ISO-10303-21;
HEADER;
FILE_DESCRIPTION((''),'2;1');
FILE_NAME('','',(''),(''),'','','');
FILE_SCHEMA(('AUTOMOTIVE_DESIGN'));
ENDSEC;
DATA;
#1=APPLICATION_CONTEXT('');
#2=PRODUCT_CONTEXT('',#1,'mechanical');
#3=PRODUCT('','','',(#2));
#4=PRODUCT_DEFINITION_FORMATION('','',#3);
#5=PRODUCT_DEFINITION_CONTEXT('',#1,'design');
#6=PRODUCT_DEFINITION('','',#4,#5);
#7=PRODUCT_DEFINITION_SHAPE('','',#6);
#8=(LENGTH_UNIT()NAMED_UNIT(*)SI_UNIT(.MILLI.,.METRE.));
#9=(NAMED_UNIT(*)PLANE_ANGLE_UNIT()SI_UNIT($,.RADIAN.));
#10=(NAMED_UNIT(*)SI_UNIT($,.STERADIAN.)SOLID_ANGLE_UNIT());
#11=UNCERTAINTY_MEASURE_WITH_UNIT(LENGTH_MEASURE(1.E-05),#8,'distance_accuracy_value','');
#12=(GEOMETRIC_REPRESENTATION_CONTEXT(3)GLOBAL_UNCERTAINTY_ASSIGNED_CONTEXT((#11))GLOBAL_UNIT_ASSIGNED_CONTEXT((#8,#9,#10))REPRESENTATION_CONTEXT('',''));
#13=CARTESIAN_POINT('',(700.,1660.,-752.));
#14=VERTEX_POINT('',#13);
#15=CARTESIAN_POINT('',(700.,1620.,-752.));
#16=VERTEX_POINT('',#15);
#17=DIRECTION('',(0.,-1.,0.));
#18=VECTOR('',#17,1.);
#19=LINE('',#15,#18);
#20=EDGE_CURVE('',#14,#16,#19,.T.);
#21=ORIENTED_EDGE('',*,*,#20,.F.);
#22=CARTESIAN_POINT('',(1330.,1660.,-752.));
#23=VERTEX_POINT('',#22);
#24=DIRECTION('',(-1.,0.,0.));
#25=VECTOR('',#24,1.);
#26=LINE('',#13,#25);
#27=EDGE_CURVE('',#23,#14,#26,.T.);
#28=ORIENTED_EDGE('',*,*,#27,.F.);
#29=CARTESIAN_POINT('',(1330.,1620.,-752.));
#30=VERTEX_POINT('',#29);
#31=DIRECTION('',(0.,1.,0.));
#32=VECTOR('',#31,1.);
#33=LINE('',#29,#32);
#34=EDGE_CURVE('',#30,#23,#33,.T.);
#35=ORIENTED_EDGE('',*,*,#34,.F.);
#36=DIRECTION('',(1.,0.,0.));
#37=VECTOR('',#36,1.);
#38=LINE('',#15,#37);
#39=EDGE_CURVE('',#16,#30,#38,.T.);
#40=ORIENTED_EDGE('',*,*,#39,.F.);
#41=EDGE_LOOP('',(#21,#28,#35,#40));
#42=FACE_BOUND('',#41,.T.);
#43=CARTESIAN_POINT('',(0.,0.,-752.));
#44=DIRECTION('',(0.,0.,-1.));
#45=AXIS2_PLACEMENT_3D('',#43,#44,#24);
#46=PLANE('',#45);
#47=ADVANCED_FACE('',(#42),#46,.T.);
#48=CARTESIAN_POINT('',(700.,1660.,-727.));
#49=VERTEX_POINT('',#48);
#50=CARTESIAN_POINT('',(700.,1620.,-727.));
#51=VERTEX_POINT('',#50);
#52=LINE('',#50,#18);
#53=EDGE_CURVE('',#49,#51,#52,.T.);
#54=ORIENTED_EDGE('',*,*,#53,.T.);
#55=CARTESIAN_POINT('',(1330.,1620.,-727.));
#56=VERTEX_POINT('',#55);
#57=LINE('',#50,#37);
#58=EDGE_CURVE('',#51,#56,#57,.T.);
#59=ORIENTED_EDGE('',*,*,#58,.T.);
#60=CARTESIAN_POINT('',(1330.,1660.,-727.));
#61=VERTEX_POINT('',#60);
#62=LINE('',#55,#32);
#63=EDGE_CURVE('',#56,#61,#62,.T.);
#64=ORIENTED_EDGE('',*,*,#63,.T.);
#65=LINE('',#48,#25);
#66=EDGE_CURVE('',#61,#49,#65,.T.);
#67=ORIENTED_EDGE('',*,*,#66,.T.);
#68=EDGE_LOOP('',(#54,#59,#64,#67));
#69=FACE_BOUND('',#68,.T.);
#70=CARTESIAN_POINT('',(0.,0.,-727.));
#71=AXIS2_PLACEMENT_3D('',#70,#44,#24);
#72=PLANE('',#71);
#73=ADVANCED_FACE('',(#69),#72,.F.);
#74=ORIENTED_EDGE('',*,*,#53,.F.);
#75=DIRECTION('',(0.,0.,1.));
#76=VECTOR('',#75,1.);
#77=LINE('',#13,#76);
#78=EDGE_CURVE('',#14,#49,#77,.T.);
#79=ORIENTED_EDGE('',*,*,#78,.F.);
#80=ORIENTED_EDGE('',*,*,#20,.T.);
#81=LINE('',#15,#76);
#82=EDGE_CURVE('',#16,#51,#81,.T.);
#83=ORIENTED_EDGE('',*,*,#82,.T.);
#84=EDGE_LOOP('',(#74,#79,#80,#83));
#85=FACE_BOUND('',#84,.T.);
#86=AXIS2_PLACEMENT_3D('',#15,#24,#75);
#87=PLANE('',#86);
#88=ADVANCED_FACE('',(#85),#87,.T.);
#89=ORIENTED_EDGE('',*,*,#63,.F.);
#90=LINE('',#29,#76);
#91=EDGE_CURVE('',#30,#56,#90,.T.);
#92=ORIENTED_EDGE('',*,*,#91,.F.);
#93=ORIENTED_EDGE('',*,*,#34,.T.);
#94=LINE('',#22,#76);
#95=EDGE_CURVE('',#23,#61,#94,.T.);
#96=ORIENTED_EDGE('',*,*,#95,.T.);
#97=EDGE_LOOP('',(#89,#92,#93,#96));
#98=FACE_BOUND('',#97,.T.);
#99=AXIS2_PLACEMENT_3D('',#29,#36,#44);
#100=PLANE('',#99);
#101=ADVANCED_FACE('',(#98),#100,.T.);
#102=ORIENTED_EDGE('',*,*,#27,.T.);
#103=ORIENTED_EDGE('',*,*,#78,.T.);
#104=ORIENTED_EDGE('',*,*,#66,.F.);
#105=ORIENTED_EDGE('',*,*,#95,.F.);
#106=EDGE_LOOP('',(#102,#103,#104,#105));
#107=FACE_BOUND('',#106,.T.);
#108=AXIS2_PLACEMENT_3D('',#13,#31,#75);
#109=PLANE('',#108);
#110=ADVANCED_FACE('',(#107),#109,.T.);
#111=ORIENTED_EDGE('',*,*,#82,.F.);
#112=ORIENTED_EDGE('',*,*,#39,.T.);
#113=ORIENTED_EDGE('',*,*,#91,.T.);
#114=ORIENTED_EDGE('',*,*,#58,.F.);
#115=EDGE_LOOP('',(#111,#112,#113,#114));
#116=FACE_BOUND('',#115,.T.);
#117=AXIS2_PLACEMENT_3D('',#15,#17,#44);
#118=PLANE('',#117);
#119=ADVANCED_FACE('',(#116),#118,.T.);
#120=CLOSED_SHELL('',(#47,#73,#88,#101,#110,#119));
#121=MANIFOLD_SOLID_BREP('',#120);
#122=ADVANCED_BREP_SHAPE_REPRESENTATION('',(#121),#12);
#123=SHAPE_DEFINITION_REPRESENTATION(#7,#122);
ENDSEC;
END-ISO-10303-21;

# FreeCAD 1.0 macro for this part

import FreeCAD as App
import Part
import Sketcher
from FreeCAD import Vector
Q = App.Units.Quantity


def add_polygon(sketch, points):
    """Adds a closed chain of lines whose ends are joined by coincident constraints."""
    first, n = sketch.GeometryCount, len(points)
    for a, b in zip(points, points[1:] + points[:1]):
        sketch.addGeometry(Part.LineSegment(App.Vector(*a, 0), App.Vector(*b, 0)), False)
    for i in range(n):
        sketch.addConstraint(Sketcher.Constraint("Coincident", first + i, 2, first + (i + 1) % n, 1))

doc = App.newDocument("Part")
params = doc.addObject("Spreadsheet::Sheet", "Params")
for row, (alias, value) in enumerate([
    ("sketch1_width", "630 mm"),
    ("sketch1_height", "40 mm"),
    ("pad1_length", "25 mm"),
], start=1):
    params.set(f"A{row}", alias)
    params.set(f"B{row}", "=" + value)
    params.setAlias(f"B{row}", alias)

body = doc.addObject("PartDesign::Body", "Body")

# Sketch on XY plane
sketch1 = body.newObject("Sketcher::SketchObject", "Sketch")
sketch1.AttachmentSupport = (doc.getObject("XY_Plane"), [""])
sketch1.MapMode = "FlatFace"
sketch1.AttachmentOffset = App.Placement(Vector(0, 0, -727), App.Rotation())
add_polygon(sketch1, [(700, 1660), (700, 1620), (1330, 1620), (1330, 1660)])  # lines 0-3
sketch1.addConstraint([
    Sketcher.Constraint("Vertical", 0),
    Sketcher.Constraint("Horizontal", 1),
    Sketcher.Constraint("Vertical", 2),
    Sketcher.Constraint("Horizontal", 3),
    Sketcher.Constraint("DistanceX", 1, 1, 1, 2, Q("630 mm")),
    Sketcher.Constraint("DistanceY", 0, 2, 0, 1, Q("40 mm")),
    Sketcher.Constraint("DistanceX", -1, 1, 0, 2, Q("700 mm")),
    Sketcher.Constraint("DistanceY", -1, 1, 0, 2, Q("1620 mm")),
])
sketch1.setExpression("Constraints[8]", "Params.sketch1_width")
sketch1.setExpression("Constraints[9]", "Params.sketch1_height")
pad1 = body.newObject("PartDesign::Pad", "Pad")
pad1.Profile = sketch1
pad1.setExpression("Length", "Params.pad1_length")
pad1.Reversed = True

doc.recompute()
